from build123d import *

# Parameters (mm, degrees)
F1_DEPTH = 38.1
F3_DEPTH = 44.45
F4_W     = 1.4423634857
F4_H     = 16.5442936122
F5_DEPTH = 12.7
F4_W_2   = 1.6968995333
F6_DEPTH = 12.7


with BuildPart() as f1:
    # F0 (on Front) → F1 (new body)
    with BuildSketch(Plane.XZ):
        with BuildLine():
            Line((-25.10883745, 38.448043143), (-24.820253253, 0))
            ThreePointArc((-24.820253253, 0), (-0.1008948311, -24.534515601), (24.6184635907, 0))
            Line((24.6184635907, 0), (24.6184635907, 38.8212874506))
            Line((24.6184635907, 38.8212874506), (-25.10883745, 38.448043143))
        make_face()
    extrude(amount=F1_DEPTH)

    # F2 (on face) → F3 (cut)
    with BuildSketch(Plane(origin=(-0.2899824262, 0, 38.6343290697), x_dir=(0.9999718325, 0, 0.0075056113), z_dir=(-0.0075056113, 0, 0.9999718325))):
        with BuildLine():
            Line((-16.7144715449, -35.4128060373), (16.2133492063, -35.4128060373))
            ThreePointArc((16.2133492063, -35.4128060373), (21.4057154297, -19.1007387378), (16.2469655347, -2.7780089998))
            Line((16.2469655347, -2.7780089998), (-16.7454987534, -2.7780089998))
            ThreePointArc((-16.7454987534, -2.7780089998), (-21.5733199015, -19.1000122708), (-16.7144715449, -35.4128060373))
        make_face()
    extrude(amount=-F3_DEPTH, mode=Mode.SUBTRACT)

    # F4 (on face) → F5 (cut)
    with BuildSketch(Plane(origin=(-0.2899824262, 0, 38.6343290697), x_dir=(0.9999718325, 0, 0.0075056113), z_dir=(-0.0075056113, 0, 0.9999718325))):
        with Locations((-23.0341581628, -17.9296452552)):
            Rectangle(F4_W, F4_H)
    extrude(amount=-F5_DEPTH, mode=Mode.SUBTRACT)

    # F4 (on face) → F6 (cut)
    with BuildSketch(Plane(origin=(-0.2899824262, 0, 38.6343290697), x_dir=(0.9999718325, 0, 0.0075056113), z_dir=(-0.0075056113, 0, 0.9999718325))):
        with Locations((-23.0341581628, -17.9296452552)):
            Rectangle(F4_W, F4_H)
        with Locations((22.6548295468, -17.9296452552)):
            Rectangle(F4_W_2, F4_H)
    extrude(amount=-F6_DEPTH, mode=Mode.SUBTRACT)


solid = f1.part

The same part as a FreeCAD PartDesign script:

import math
import FreeCAD as App
import Part
import Sketcher
Q = App.Units.Quantity


def add_polygon(sketch, points):
    """Adds a closed chain of lines whose ends are joined by coincident constraints."""
    first, n = sketch.GeometryCount, len(points)
    for a, b in zip(points, points[1:] + points[:1]):
        sketch.addGeometry(Part.LineSegment(App.Vector(*a, 0), App.Vector(*b, 0)), False)
    for i in range(n):
        sketch.addConstraint(Sketcher.Constraint("Coincident", first + i, 2, first + (i + 1) % n, 1))

doc = App.newDocument("Part")
body = doc.addObject("PartDesign::Body", "Body")

# Sketch on XZ plane
sketch1 = body.newObject("Sketcher::SketchObject", "Sketch")
sketch1.AttachmentSupport = (doc.getObject("XZ_Plane"), [""])
sketch1.MapMode = "FlatFace"
sketch1.addGeometry(Part.LineSegment(App.Vector(-25, 38, 0), App.Vector(-25, 0, 0)), False)
sketch1.addGeometry(Part.ArcOfCircle(Part.Circle(App.Vector(0, 0, 0), App.Vector(0, 0, 1), 25), math.radians(-180), math.radians(0)), False)
sketch1.addGeometry(Part.LineSegment(App.Vector(25, 0, 0), App.Vector(25, 39, 0)), False)
sketch1.addGeometry(Part.LineSegment(App.Vector(25, 39, 0), App.Vector(-25, 38, 0)), False)
sketch1.addConstraint(Sketcher.Constraint("Tangent", 0, 2, 1, 1))
sketch1.addConstraint(Sketcher.Constraint("Coincident", 1, 2, 2, 1))
sketch1.addConstraint(Sketcher.Constraint("Coincident", 2, 2, 3, 1))
sketch1.addConstraint(Sketcher.Constraint("Coincident", 3, 2, 0, 1))
sketch1.addConstraint(Sketcher.Constraint("Vertical", 2))
sketch1.addConstraint(Sketcher.Constraint("PointOnObject", 0, 2, -1))
sketch1.addConstraint(Sketcher.Constraint("PointOnObject", 1, 2, -1))
sketch1.addConstraint(Sketcher.Constraint("Perpendicular", 0, 3))
sketch1.addConstraint(Sketcher.Constraint("Radius", 1, Q("24.720055 mm")))
sketch1.addConstraint(Sketcher.Constraint("Distance", 3, Q("49.728702 mm")))
sketch1.addConstraint(Sketcher.Constraint("DistanceY", 2, 1, 2, 2, Q("38.821287 mm")))
sketch1.addConstraint(Sketcher.Constraint("DistanceX", 1, 3, -1, 1, Q("0.100895 mm")))
pad1 = body.newObject("PartDesign::Pad", "Pad")
pad1.Profile = sketch1
pad1.Length = Q("1.5 in")

# Sketch on an angled plane
sketch2 = body.newObject("Sketcher::SketchObject", "Sketch001")
sketch2.Placement = App.Placement(App.Vector(-0.289982, 0, 38.634329), App.Rotation(App.Vector(0.999971833, 0, 0.007505611), App.Vector(0, 1.000000001, 0), App.Vector(-0.007505611, 0, 0.999971833), "ZXY"))
sketch2.addGeometry(Part.LineSegment(App.Vector(-17, -35, 0), App.Vector(16, -35, 0)), False)
sketch2.addGeometry(Part.ArcOfCircle(Part.Circle(App.Vector(-7, -19, 0), App.Vector(0, 0, 1), 28), math.radians(-35), math.radians(35)), False)
sketch2.addGeometry(Part.LineSegment(App.Vector(16, -3, 0), App.Vector(-17, -3, 0)), False)
sketch2.addGeometry(Part.ArcOfCircle(Part.Circle(App.Vector(8, -19, 0), App.Vector(0, 0, 1), 30), math.radians(147), math.radians(213)), False)
sketch2.addConstraint(Sketcher.Constraint("Coincident", 0, 2, 1, 1))
sketch2.addConstraint(Sketcher.Constraint("Coincident", 1, 2, 2, 1))
sketch2.addConstraint(Sketcher.Constraint("Coincident", 2, 2, 3, 1))
sketch2.addConstraint(Sketcher.Constraint("Coincident", 3, 2, 0, 1))
sketch2.addConstraint(Sketcher.Constraint("Horizontal", 0))
sketch2.addConstraint(Sketcher.Constraint("Horizontal", 2))
sketch2.addConstraint(Sketcher.Constraint("Horizontal", 1, 3, 3, 3))
sketch2.addConstraint(Sketcher.Constraint("DistanceX", 1, 3, 3, 3, Q("0.6 in")))
sketch2.addConstraint(Sketcher.Constraint("Radius", 1, Q("28.310382 mm")))
sketch2.addConstraint(Sketcher.Constraint("Radius", 3, Q("29.908682 mm")))
sketch2.addConstraint(Sketcher.Constraint("DistanceX", 0, 1, 0, 2, Q("32.927821 mm")))
sketch2.addConstraint(Sketcher.Constraint("DistanceX", 2, 2, -1, 1, Q("16.745499 mm")))
sketch2.addConstraint(Sketcher.Constraint("DistanceX", 2, 2, 2, 1, Q("32.992464 mm")))
sketch2.addConstraint(Sketcher.Constraint("DistanceY", 1, 2, -1, 1, Q("2.778009 mm")))
pocket1 = body.newObject("PartDesign::Pocket", "Pocket")
pocket1.Profile = sketch2
pocket1.Length = Q("1.75 in")

# Sketch on an angled plane
sketch3 = body.newObject("Sketcher::SketchObject", "Sketch002")
sketch3.Placement = App.Placement(App.Vector(-0.289982, 0, 38.634329), App.Rotation(App.Vector(0.999971833, 0, 0.007505611), App.Vector(0, 1.000000001, 0), App.Vector(-0.007505611, 0, 0.999971833), "ZXY"))
add_polygon(sketch3, [(-23.8, -9.7), (-23.8, -26.2), (-22.3, -26.2), (-22.3, -9.7)])  # lines 0-3
sketch3.addConstraint(Sketcher.Constraint("Vertical", 0))
sketch3.addConstraint(Sketcher.Constraint("Horizontal", 1))
sketch3.addConstraint(Sketcher.Constraint("Vertical", 2))
sketch3.addConstraint(Sketcher.Constraint("Horizontal", 3))
sketch3.addConstraint(Sketcher.Constraint("DistanceY", 2, 2, -1, 1, Q("9.657498 mm")))
sketch3.addConstraint(Sketcher.Constraint("DistanceX", 1, 1, 1, 2, Q("1.442363 mm")))
sketch3.addConstraint(Sketcher.Constraint("DistanceY", 0, 2, 0, 1, Q("16.544294 mm")))
sketch3.addConstraint(Sketcher.Constraint("DistanceX", 0, 2, -1, 1, Q("23.75534 mm")))
pocket2 = body.newObject("PartDesign::Pocket", "Pocket001")
pocket2.Profile = sketch3
pocket2.Length = Q("0.5 in")

# Sketch on an angled plane
sketch4 = body.newObject("Sketcher::SketchObject", "Sketch003")
sketch4.Placement = App.Placement(App.Vector(-0.289982, 0, 38.634329), App.Rotation(App.Vector(0.999971833, 0, 0.007505611), App.Vector(0, 1.000000001, 0), App.Vector(-0.007505611, 0, 0.999971833), "ZXY"))
add_polygon(sketch4, [(-23.8, -9.7), (-23.8, -26.2), (-22.3, -26.2), (-22.3, -9.7)])  # lines 0-3
add_polygon(sketch4, [(21.8, -9.7), (21.8, -26.2), (23.5, -26.2), (23.5, -9.7)])  # lines 4-7
sketch4.addConstraint(Sketcher.Constraint("Vertical", 0))
sketch4.addConstraint(Sketcher.Constraint("Horizontal", 1))
sketch4.addConstraint(Sketcher.Constraint("Vertical", 2))
sketch4.addConstraint(Sketcher.Constraint("Horizontal", 3))
sketch4.addConstraint(Sketcher.Constraint("Vertical", 4))
sketch4.addConstraint(Sketcher.Constraint("Horizontal", 5))
sketch4.addConstraint(Sketcher.Constraint("Vertical", 6))
sketch4.addConstraint(Sketcher.Constraint("Horizontal", 7))
sketch4.addConstraint(Sketcher.Constraint("Horizontal", 1, 2, 4, 2))
sketch4.addConstraint(Sketcher.Constraint("Horizontal", 3, 2, 6, 2))
sketch4.addConstraint(Sketcher.Constraint("DistanceX", 5, 1, 5, 2, Q("1.6969 mm")))
sketch4.addConstraint(Sketcher.Constraint("DistanceY", 2, 2, -1, 1, Q("9.657498 mm")))
sketch4.addConstraint(Sketcher.Constraint("DistanceX", 1, 1, 1, 2, Q("1.442363 mm")))
sketch4.addConstraint(Sketcher.Constraint("DistanceY", 0, 2, 0, 1, Q("16.544294 mm")))
sketch4.addConstraint(Sketcher.Constraint("DistanceX", 0, 2, -1, 1, Q("23.75534 mm")))
sketch4.addConstraint(Sketcher.Constraint("DistanceX", -1, 1, 4, 2, Q("21.80638 mm")))
pocket3 = body.newObject("PartDesign::Pocket", "Pocket002")
pocket3.Profile = sketch4
pocket3.Length = Q("0.5 in")

doc.recompute()
